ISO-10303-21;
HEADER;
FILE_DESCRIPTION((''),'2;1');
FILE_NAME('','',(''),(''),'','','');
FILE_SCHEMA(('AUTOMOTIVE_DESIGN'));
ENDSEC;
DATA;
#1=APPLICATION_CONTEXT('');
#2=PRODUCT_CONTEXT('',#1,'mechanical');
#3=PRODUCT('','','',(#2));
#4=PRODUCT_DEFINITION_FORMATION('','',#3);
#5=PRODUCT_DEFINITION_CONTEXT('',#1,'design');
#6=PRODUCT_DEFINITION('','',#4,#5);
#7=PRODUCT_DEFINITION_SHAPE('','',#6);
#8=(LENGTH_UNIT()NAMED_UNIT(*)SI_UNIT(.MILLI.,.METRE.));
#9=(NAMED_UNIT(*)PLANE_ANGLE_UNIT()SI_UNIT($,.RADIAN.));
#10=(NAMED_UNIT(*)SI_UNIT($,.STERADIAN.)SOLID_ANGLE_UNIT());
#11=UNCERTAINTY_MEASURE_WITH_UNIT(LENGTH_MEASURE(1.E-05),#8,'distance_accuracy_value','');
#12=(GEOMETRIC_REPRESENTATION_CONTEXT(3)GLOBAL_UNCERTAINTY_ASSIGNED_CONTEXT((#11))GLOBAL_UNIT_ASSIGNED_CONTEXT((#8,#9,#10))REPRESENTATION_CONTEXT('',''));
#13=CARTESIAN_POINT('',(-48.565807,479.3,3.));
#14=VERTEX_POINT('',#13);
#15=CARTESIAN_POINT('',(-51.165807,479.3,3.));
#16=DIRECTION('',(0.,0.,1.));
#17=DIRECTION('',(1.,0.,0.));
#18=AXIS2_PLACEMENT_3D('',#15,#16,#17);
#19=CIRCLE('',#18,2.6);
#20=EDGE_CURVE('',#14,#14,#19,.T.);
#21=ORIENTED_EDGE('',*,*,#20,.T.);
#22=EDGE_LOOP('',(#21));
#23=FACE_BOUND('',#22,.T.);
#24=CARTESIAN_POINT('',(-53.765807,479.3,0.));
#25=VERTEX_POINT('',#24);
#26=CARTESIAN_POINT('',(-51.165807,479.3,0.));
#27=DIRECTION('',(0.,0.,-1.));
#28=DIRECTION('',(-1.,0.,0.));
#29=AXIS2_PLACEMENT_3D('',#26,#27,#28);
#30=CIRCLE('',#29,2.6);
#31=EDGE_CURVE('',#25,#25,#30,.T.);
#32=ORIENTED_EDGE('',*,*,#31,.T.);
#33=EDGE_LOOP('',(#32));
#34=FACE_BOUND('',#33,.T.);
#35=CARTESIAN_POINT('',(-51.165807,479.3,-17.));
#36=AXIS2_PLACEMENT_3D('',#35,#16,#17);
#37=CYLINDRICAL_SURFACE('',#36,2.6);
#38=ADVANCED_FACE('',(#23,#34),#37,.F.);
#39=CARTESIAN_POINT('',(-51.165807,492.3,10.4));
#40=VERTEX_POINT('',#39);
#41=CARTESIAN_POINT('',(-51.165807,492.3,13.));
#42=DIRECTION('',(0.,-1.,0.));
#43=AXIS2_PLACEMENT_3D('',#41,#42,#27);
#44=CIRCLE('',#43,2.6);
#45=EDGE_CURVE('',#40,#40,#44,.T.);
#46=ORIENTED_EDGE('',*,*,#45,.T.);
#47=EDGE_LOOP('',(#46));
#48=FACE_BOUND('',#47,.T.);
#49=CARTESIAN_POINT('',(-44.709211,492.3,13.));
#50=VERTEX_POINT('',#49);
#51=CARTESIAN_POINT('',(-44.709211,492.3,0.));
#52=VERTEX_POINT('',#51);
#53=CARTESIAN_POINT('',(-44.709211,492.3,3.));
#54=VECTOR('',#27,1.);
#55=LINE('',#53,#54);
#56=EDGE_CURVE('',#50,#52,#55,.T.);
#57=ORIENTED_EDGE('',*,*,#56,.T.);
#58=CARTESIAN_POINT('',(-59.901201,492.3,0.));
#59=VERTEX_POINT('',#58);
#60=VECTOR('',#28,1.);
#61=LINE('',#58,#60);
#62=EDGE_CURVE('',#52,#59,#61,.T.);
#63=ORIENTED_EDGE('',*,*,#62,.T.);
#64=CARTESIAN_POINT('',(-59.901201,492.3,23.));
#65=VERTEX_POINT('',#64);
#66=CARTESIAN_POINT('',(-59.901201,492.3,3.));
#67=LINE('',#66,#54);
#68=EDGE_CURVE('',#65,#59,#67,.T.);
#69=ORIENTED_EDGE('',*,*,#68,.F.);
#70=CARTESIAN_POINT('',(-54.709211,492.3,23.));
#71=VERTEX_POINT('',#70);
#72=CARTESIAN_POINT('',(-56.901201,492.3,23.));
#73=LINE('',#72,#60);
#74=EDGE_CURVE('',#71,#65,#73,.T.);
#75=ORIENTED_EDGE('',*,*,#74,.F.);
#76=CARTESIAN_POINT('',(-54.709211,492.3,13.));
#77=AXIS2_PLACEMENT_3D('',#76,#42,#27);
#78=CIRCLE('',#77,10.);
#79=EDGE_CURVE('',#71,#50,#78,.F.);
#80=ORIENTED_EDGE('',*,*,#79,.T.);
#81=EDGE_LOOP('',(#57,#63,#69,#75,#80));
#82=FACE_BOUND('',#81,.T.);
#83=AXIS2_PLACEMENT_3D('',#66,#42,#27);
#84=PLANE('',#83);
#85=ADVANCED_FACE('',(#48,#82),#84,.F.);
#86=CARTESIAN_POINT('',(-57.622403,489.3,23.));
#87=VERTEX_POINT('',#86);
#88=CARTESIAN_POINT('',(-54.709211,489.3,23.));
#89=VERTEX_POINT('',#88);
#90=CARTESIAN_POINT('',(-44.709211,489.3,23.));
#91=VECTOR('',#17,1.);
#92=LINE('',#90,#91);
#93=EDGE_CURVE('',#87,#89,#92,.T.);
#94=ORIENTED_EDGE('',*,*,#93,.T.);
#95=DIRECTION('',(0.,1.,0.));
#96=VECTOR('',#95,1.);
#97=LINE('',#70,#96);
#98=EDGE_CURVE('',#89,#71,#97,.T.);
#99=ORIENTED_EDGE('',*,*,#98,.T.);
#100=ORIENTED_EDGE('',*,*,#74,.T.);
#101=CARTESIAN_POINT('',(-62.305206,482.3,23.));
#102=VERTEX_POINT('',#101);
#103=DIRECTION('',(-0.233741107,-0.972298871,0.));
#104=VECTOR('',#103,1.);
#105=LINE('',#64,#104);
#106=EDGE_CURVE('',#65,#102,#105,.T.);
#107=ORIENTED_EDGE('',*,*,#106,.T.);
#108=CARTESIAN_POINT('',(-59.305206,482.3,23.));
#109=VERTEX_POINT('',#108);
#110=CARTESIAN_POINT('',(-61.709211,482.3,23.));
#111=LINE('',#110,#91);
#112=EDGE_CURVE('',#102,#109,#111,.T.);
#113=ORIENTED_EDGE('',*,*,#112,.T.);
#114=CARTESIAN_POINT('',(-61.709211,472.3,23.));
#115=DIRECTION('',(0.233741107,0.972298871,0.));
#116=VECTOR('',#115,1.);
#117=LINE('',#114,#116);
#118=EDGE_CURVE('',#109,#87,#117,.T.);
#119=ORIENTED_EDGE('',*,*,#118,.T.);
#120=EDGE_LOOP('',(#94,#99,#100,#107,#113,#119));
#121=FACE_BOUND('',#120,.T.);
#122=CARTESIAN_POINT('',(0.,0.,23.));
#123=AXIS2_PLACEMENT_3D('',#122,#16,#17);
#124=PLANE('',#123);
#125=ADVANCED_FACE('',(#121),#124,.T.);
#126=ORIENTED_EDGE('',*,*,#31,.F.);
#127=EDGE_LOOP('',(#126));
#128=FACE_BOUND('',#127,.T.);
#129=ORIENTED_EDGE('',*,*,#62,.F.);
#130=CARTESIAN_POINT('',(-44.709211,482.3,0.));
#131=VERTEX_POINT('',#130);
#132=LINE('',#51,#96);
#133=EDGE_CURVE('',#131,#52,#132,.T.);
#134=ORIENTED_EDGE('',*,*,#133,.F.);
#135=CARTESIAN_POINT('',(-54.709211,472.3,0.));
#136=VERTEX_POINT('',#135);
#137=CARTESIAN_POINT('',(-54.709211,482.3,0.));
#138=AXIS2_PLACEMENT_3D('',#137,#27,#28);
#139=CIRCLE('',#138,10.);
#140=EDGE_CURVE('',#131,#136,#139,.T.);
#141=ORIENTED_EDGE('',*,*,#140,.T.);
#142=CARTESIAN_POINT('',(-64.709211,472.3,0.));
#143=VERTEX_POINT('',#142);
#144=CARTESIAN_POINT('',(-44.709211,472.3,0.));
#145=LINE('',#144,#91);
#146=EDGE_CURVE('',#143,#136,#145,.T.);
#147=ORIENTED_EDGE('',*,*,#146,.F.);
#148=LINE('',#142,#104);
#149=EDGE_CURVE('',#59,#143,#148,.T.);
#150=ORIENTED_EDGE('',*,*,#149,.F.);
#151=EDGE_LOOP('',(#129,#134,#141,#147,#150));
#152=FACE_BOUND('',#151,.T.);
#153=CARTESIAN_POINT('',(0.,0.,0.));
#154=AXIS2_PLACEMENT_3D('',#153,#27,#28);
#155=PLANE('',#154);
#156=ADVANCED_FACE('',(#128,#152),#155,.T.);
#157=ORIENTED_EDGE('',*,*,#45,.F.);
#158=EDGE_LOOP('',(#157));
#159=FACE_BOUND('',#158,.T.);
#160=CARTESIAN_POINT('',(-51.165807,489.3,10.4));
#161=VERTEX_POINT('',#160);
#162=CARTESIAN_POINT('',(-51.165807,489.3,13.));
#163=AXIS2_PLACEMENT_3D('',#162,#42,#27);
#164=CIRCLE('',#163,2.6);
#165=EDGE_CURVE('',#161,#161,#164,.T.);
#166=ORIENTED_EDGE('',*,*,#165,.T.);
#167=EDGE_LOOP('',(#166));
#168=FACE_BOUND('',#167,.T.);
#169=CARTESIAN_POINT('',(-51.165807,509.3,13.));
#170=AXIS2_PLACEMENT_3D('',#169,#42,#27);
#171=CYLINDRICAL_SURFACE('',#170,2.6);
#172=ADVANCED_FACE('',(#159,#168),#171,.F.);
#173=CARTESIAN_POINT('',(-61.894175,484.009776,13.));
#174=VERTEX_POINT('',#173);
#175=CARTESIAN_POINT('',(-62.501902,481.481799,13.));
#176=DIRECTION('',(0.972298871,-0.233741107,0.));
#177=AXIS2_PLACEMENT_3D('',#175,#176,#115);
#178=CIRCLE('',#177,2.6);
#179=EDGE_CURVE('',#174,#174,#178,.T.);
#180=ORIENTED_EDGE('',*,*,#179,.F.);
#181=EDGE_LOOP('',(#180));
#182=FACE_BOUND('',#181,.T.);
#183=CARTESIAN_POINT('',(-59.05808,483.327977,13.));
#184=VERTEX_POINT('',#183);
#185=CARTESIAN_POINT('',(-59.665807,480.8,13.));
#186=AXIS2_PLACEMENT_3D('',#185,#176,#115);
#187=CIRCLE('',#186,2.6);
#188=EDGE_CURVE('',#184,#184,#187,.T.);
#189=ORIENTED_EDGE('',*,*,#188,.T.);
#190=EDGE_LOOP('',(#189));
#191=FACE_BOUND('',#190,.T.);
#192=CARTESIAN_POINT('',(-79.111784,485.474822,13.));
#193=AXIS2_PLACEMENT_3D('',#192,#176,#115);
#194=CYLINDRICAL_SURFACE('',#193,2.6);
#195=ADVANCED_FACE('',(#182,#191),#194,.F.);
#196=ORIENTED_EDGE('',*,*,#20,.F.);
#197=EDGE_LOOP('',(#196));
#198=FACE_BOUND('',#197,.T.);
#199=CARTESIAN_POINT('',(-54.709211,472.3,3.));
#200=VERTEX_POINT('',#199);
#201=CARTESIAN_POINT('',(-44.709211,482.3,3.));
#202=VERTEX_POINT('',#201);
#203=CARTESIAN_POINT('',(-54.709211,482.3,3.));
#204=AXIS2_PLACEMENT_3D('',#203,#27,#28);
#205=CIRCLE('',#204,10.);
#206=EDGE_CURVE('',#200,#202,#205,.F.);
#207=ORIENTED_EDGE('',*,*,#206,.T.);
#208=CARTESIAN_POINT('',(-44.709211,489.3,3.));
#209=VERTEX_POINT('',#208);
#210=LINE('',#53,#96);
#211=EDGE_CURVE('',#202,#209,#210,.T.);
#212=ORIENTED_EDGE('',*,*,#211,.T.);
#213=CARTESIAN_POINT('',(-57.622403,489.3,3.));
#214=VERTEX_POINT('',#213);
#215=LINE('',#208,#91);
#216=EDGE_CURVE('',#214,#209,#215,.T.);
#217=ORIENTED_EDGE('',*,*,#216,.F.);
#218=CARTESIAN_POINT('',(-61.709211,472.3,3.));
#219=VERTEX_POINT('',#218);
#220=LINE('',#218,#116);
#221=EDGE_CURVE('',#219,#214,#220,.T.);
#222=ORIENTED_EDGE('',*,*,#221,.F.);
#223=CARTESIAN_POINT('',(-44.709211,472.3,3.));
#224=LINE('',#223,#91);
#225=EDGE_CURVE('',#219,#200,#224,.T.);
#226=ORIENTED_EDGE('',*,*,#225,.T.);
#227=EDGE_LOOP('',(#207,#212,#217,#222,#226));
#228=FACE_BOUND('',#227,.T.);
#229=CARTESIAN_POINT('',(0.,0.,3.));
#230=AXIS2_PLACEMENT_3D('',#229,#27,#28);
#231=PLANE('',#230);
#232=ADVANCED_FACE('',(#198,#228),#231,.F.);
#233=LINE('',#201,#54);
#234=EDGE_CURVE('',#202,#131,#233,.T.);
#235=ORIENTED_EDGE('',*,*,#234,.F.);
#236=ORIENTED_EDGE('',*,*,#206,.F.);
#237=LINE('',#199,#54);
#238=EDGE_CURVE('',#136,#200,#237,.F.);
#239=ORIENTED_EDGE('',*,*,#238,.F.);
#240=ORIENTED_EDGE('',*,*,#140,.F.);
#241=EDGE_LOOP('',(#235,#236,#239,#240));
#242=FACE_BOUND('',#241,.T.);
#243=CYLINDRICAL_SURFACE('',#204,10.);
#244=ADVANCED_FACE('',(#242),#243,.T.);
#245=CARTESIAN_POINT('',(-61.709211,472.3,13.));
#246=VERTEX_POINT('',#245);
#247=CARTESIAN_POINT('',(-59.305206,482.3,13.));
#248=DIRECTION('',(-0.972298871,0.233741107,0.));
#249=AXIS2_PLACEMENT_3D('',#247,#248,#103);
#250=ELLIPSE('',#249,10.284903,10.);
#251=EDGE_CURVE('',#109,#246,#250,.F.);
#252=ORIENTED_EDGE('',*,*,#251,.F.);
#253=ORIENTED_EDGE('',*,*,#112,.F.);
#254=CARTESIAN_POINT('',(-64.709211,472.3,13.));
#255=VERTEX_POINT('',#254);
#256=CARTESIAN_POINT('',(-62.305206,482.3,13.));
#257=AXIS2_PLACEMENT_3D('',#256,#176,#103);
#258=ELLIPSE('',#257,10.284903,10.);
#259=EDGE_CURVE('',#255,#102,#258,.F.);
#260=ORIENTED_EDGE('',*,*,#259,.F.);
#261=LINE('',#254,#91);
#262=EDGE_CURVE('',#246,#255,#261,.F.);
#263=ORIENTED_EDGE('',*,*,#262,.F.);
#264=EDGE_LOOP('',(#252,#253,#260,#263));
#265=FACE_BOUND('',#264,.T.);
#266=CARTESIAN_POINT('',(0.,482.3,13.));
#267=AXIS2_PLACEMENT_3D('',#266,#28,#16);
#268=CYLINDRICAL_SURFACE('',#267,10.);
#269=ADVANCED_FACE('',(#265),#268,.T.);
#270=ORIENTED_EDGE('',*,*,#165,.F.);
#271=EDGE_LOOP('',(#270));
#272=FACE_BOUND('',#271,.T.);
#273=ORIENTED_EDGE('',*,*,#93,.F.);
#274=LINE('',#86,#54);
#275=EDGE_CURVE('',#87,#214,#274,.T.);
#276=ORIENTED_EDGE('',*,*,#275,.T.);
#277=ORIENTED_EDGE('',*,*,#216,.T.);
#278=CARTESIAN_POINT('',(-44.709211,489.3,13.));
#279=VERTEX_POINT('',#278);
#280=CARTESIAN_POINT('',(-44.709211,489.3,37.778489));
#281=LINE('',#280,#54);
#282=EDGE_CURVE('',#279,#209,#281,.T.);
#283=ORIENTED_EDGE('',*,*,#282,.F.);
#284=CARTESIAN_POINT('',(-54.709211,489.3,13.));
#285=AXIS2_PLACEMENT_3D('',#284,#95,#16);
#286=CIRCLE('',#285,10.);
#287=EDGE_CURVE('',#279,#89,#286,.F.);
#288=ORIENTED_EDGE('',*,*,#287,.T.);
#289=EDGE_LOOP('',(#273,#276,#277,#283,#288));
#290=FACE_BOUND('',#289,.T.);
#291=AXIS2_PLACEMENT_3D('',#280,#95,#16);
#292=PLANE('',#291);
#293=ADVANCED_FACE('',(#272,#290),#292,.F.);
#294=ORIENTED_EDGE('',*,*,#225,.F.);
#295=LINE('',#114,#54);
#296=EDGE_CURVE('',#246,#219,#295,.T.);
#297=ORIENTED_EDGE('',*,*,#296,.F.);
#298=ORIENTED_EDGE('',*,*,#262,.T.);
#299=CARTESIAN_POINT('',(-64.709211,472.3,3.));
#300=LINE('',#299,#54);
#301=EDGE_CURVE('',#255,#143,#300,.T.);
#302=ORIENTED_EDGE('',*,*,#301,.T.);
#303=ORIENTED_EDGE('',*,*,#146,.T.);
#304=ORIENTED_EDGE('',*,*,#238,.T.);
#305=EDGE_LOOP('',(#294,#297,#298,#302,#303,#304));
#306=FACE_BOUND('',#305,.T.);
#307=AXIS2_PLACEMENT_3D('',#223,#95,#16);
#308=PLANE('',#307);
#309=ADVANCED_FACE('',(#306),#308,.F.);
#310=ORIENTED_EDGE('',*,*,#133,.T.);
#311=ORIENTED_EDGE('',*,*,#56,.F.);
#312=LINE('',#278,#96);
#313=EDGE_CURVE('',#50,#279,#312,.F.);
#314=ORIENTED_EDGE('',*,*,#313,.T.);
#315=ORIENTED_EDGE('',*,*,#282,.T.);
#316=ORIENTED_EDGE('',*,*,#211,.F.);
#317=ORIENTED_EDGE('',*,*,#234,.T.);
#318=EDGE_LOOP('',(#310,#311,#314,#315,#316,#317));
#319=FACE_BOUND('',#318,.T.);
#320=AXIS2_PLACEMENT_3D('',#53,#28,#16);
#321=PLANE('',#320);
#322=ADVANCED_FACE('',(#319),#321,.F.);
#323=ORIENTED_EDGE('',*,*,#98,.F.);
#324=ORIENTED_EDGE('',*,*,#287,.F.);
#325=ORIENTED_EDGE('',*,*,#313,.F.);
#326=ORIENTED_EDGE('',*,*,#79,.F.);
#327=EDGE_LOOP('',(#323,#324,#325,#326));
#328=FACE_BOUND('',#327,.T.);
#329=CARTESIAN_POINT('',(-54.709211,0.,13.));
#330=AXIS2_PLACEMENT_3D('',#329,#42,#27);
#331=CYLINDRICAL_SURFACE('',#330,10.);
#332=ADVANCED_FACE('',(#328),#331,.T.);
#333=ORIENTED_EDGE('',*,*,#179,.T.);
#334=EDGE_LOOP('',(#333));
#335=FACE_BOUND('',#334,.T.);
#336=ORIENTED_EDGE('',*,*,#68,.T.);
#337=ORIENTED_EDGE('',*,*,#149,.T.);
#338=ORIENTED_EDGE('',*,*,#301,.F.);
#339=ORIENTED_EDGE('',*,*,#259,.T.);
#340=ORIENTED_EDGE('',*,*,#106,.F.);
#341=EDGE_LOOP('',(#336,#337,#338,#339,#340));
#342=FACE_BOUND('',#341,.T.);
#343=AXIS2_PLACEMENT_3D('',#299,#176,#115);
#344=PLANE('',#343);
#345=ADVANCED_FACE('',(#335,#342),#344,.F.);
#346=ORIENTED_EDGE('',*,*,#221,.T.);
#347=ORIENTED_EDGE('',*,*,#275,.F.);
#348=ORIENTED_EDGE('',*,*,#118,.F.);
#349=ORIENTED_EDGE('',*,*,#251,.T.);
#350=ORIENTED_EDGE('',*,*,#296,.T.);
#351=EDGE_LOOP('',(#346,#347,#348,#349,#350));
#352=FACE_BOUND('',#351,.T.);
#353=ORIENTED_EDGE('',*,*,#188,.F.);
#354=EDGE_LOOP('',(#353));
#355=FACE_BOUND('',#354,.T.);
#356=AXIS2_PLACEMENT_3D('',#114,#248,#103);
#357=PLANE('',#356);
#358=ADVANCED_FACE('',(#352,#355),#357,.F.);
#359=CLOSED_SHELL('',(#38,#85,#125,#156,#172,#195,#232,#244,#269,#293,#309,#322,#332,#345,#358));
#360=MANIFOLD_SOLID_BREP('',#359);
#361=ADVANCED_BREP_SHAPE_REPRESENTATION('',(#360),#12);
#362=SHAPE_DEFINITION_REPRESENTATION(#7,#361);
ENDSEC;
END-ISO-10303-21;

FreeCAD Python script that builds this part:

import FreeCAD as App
import Part
import Sketcher

V = App.Vector
Q = App.Units.Quantity


def edges_at(feature, points):
    """Names of the edges that pass closest to the given points."""
    edges = feature.Shape.Edges
    near = lambda p: min(range(len(edges)), key=lambda i: edges[i].distToShape(Part.Vertex(*p))[0])
    return sorted({f"Edge{near(p) + 1}" for p in points})


def add_polygon(sketch, points):
    """Adds a closed chain of lines whose ends are joined by coincident constraints."""
    first, n = sketch.GeometryCount, len(points)
    for a, b in zip(points, points[1:] + points[:1]):
        sketch.addGeometry(Part.LineSegment(App.Vector(*a, 0), App.Vector(*b, 0)), False)
    for i in range(n):
        sketch.addConstraint(Sketcher.Constraint("Coincident", first + i, 2, first + (i + 1) % n, 1))

doc = App.newDocument("Part")
body = doc.addObject("PartDesign::Body", "Body")

sketch1 = doc.addObject("Sketcher::SketchObject", "Sketch")
body.addObject(sketch1)
sketch1.AttachmentSupport = (doc.XY_Plane, [""])
sketch1.MapMode = "FlatFace"
add_polygon(sketch1, [(-45, 472), (-45, 492), (-60, 492), (-65, 472)])
sketch1.addConstraint([
    Sketcher.Constraint("Vertical", 0),
    Sketcher.Constraint("Horizontal", 1),
    Sketcher.Constraint("Horizontal", 3),
    Sketcher.Constraint("Equal", 3, 0),
    Sketcher.Constraint("DistanceX", 3, 1, 3, 2, Q("20 mm")),
    Sketcher.Constraint("DistanceY", -1, 1, 0, 2, Q("492.3 mm")),
    Sketcher.Constraint("DistanceX", 1, 2, 1, 1, Q("15.191991 mm")),
    Sketcher.Constraint("DistanceX", 1, 2, -1, 1, Q("59.901201 mm")),
])
pad1 = doc.addObject("PartDesign::Pad", "Pad")
body.addObject(pad1)
pad1.Profile = sketch1
pad1.Length = 3

sketch2 = doc.addObject("Sketcher::SketchObject", "Sketch001")
body.addObject(sketch2)
sketch2.AttachmentSupport = (doc.XY_Plane, [""])
sketch2.MapMode = "FlatFace"
sketch2.AttachmentOffset = App.Placement(V(0, 0, 3), App.Rotation())
add_polygon(sketch2, [(-59.9, 492.3), (-64.7, 472.3), (-61.7, 472.3), (-56.9, 492.3)])
sketch2.addConstraint([
    Sketcher.Constraint("Horizontal", 1),
    Sketcher.Constraint("Horizontal", 3),
    Sketcher.Constraint("Parallel", 0, 2),
    Sketcher.Constraint("DistanceX", 1, 1, 1, 2, Q("3 mm")),
    Sketcher.Constraint("DistanceY", 1, 2, 2, 2, Q("20 mm")),
    Sketcher.Constraint("DistanceY", -1, 1, 0, 2, Q("472.3 mm")),
    Sketcher.Constraint("DistanceX", 2, 2, -1, 1, Q("56.901201 mm")),
    Sketcher.Constraint("DistanceX", 0, 2, -1, 1, Q("64.709211 mm")),
])
pad2 = doc.addObject("PartDesign::Pad", "Pad001")
body.addObject(pad2)
pad2.Profile = sketch2
pad2.Length = 20

sketch3 = doc.addObject("Sketcher::SketchObject", "Sketch002")
body.addObject(sketch3)
sketch3.AttachmentSupport = (doc.XY_Plane, [""])
sketch3.MapMode = "FlatFace"
sketch3.AttachmentOffset = App.Placement(V(0, 0, 3), App.Rotation())
add_polygon(sketch3, [(-59.2, 492.3), (-59.2, 489.3), (-44.7, 489.3), (-44.7, 492.3)])
sketch3.addConstraint([
    Sketcher.Constraint("Vertical", 0),
    Sketcher.Constraint("Horizontal", 1),
    Sketcher.Constraint("Vertical", 2),
    Sketcher.Constraint("Horizontal", 3),
    Sketcher.Constraint("DistanceY", 0, 2, 0, 1, Q("3 mm")),
    Sketcher.Constraint("DistanceY", -1, 1, 0, 2, Q("489.3 mm")),
    Sketcher.Constraint("DistanceX", 0, 2, -1, 1, Q("59.18 mm")),
    Sketcher.Constraint("DistanceX", 1, 1, 1, 2, Q("14.470789 mm")),
])
pad3 = doc.addObject("PartDesign::Pad", "Pad002")
body.addObject(pad3)
pad3.Profile = sketch3
pad3.Length = 20
doc.recompute()

fillet = doc.addObject("PartDesign::Fillet", "Fillet")
body.addObject(fillet)
fillet.Base = (pad3, edges_at(pad3, [(-63.209, 472.3, 23), (-44.709, 490.8, 23), (-44.709, 472.3, 1.5)]))
fillet.Radius = 10

sketch4 = doc.addObject("Sketcher::SketchObject", "Sketch003")
body.addObject(sketch4)
sketch4.AttachmentSupport = (doc.XY_Plane, [""])
sketch4.MapMode = "FlatFace"
sketch4.AttachmentOffset = App.Placement(V(0, 0, 3), App.Rotation())
sketch4.addGeometry(Part.Circle(V(-51.2, 479.3, 0), V(0, 0, 1), 2.6), False)
sketch4.addConstraint([
    Sketcher.Constraint("Diameter", 0, Q("5.2 mm")),
    Sketcher.Constraint("DistanceY", -1, 1, 0, 3, Q("479.3 mm")),
    Sketcher.Constraint("DistanceX", 0, 3, -1, 1, Q("51.165807 mm")),
])
pocket1 = doc.addObject("PartDesign::Pocket", "Pocket")
body.addObject(pocket1)
pocket1.Profile = sketch4
pocket1.Length = 20

sketch5 = doc.addObject("Sketcher::SketchObject", "Sketch004")
body.addObject(sketch5)
sketch5.AttachmentSupport = (doc.XZ_Plane, [""])
sketch5.MapMode = "FlatFace"
sketch5.AttachmentOffset = App.Placement(V(0, 0, -489.3), App.Rotation())
sketch5.addGeometry(Part.Circle(V(-51.2, 13, 0), V(0, 0, 1), 2.6), False)
sketch5.addConstraint([
    Sketcher.Constraint("Diameter", 0, Q("5.2 mm")),
    Sketcher.Constraint("DistanceY", -1, 1, 0, 3, Q("13 mm")),
    Sketcher.Constraint("DistanceX", 0, 3, -1, 1, Q("51.165807 mm")),
])
pocket2 = doc.addObject("PartDesign::Pocket", "Pocket001")
body.addObject(pocket2)
pocket2.Profile = sketch5
pocket2.Length = 20

sketch6 = doc.addObject("Sketcher::SketchObject", "Sketch005")
body.addObject(sketch6)
sketch6.Placement = App.Placement(V(-165.675567, 39.828484, 0), App.Rotation(V(0, 0, -1), V(0.233741107, 0.972298871, 0), V(0.972298871, -0.233741107, 0), "ZXY"))
sketch6.addGeometry(Part.Circle(V(-13, 453.5, 0), V(0, 0, 1), 2.6), False)
sketch6.addConstraint([
    Sketcher.Constraint("Diameter", 0, Q("5.2 mm")),
    Sketcher.Constraint("DistanceX", 0, 3, -1, 1, Q("13 mm")),
    Sketcher.Constraint("DistanceY", -1, 1, 0, 3, Q("453.534945 mm")),
])
pocket3 = doc.addObject("PartDesign::Pocket", "Pocket002")
body.addObject(pocket3)
pocket3.Profile = sketch6
pocket3.Length = 20

doc.recompute()
